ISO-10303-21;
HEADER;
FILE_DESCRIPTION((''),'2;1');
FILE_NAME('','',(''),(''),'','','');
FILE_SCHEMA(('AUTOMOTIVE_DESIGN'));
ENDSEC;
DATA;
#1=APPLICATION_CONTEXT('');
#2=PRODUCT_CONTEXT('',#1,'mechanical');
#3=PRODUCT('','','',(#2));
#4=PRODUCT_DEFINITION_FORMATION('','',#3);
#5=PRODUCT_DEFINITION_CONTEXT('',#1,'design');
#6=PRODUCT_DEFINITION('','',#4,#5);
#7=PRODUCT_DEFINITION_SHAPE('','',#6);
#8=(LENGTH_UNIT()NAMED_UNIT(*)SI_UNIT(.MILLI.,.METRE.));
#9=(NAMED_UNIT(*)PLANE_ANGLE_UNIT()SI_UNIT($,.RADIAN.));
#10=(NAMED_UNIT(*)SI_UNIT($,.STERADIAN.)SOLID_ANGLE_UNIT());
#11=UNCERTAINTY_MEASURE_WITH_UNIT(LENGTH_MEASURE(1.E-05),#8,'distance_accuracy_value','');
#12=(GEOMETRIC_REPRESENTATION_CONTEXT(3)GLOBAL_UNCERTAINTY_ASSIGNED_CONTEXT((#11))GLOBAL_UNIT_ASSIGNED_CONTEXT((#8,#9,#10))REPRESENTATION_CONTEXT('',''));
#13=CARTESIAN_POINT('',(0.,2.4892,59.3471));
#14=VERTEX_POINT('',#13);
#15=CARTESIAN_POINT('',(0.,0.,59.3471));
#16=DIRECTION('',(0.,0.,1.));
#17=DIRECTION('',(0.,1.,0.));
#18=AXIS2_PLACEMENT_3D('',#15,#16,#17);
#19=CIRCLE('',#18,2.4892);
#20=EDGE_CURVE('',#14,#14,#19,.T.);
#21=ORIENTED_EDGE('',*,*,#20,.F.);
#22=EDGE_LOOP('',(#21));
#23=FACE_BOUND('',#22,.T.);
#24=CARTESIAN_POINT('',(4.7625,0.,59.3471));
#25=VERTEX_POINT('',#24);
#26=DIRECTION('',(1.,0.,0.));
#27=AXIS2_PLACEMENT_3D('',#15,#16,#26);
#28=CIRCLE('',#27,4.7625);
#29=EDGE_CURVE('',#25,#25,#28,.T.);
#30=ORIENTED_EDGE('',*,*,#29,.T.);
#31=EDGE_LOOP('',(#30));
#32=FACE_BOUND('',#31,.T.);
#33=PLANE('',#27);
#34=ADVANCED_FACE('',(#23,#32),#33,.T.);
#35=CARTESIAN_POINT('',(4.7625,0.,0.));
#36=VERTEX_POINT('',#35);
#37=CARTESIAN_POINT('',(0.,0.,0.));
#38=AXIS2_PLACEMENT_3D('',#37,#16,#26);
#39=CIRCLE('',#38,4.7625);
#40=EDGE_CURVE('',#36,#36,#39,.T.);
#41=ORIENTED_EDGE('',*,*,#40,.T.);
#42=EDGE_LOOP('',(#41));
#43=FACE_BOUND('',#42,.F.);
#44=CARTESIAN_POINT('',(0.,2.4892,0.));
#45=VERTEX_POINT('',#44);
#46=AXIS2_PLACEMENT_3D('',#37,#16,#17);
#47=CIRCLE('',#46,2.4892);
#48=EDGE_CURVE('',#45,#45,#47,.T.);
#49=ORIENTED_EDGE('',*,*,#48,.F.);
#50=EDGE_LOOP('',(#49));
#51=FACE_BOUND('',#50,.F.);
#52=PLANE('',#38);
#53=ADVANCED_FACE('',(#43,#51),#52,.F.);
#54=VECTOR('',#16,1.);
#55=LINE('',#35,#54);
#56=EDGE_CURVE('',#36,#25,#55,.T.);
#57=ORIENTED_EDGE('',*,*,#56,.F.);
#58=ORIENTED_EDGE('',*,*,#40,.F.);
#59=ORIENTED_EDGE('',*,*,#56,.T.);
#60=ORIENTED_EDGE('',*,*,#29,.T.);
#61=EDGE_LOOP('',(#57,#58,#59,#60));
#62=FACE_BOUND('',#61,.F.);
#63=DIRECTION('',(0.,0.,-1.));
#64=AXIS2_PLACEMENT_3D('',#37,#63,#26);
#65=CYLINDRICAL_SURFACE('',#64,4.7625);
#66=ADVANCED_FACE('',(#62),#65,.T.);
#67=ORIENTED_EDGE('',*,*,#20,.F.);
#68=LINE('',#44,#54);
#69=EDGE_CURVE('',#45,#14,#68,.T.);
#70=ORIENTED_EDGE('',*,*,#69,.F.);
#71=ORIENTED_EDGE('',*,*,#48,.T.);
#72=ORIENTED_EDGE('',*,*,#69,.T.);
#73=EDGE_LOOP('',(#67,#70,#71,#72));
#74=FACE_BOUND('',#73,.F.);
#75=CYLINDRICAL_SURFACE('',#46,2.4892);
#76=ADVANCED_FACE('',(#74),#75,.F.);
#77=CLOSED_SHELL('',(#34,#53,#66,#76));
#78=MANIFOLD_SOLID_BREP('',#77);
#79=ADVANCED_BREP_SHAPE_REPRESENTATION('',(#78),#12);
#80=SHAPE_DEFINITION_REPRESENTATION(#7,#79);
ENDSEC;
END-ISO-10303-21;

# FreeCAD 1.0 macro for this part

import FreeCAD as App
import Part
import Sketcher

V = App.Vector
Q = App.Units.Quantity

doc = App.newDocument("Part")
body = doc.addObject("PartDesign::Body", "Body")

sketch1 = body.newObject("Sketcher::SketchObject", "Sketch")
sketch1.AttachmentSupport = (doc.getObject("XY_Plane"), [""])
sketch1.MapMode = "FlatFace"
sketch1.addGeometry(Part.Circle(V(0, 0, 0), V(0, 0, 1), 4.8), False)
sketch1.addConstraint(Sketcher.Constraint("Coincident", 0, 3, -1, 1))
sketch1.addConstraint(Sketcher.Constraint("Diameter", 0, Q("0.375 in")))
pad1 = body.newObject("PartDesign::Pad", "Pad")
pad1.Profile = sketch1
pad1.Length = Q("2.3365 in")

sketch2 = body.newObject("Sketcher::SketchObject", "Sketch001")
sketch2.AttachmentSupport = (doc.getObject("XY_Plane"), [""])
sketch2.MapMode = "FlatFace"
sketch2.addGeometry(Part.Circle(V(0, 0, 0), V(0, 0, 1), 2.5), False)
sketch2.addConstraint(Sketcher.Constraint("Coincident", 0, 3, -1, 1))
sketch2.addConstraint(Sketcher.Constraint("Diameter", 0, Q("0.196 in")))
doc.recompute()
hole = body.newObject("PartDesign::Hole", "Hole")
hole.Profile = sketch2
hole.ThreadType = "None"
hole.Diameter = Q("0.196 in")
hole.DepthType = "ThroughAll"
hole.Reversed = True

doc.recompute()
